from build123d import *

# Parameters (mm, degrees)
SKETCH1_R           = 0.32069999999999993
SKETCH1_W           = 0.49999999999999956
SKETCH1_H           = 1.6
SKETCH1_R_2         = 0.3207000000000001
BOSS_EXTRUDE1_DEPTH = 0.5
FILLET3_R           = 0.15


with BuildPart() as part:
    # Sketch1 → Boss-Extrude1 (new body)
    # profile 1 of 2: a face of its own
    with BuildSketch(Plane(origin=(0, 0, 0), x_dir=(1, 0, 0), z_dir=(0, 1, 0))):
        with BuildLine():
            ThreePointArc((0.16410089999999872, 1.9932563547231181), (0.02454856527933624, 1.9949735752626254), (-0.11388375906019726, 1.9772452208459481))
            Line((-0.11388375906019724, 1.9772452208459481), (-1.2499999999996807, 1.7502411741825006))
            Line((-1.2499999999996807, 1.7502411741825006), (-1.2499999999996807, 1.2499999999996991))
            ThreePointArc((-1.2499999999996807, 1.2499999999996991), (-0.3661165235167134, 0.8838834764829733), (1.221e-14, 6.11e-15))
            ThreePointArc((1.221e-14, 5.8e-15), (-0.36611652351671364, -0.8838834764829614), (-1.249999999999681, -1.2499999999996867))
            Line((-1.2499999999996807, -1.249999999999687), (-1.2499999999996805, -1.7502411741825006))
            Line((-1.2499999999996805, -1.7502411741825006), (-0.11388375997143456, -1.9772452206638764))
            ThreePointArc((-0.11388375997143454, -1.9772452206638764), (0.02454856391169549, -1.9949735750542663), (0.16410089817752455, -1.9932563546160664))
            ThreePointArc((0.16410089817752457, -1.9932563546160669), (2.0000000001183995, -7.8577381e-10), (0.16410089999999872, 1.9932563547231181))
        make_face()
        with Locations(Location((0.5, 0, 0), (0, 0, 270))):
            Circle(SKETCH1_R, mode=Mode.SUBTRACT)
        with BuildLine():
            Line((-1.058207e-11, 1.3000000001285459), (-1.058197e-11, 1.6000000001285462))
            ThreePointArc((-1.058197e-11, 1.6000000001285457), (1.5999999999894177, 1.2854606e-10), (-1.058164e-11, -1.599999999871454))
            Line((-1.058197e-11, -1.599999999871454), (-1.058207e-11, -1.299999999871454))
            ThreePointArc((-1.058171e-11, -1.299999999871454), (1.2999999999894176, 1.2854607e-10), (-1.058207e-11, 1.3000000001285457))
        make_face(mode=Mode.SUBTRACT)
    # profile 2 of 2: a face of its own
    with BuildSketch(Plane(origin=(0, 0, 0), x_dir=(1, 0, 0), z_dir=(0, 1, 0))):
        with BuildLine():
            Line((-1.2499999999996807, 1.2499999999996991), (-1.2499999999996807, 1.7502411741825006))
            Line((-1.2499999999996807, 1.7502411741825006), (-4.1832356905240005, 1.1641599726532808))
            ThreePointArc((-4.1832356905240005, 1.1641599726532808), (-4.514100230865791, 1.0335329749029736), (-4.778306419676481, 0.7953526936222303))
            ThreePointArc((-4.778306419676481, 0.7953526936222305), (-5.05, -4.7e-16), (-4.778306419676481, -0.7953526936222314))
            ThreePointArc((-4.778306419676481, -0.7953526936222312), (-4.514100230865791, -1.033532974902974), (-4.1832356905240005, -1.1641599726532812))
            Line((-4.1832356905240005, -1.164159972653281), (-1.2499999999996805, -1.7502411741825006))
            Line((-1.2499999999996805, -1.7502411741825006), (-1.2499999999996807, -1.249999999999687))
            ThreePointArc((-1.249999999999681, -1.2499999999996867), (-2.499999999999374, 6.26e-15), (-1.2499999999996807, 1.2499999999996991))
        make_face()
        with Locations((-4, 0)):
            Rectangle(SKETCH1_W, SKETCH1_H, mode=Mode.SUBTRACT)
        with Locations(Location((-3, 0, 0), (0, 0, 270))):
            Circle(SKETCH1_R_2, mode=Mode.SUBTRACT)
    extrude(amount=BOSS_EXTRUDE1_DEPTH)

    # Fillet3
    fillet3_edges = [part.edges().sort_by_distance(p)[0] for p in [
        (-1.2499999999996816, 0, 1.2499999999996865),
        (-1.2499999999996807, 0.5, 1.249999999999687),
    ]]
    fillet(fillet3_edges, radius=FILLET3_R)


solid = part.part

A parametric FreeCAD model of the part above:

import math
import FreeCAD as App
import Part
import Sketcher
Q = App.Units.Quantity


def edges_at(feature, points):
    """Names of the edges that pass closest to the given points."""
    edges = feature.Shape.Edges
    near = lambda p: min(range(len(edges)), key=lambda i: edges[i].distToShape(Part.Vertex(*p))[0])
    return sorted({f"Edge{near(p) + 1}" for p in points})


def add_polygon(sketch, points):
    """Adds a closed chain of lines whose ends are joined by coincident constraints."""
    first, n = sketch.GeometryCount, len(points)
    for a, b in zip(points, points[1:] + points[:1]):
        sketch.addGeometry(Part.LineSegment(App.Vector(*a, 0), App.Vector(*b, 0)), False)
    for i in range(n):
        sketch.addConstraint(Sketcher.Constraint("Coincident", first + i, 2, first + (i + 1) % n, 1))

doc = App.newDocument("Part")
body = doc.addObject("PartDesign::Body", "Body")

# Sketch on XZ plane
sketch1 = body.newObject("Sketcher::SketchObject", "Sketch")
sketch1.AttachmentSupport = (doc.getObject("XZ_Plane"), [""])
sketch1.MapMode = "FlatFace"
sketch1.addGeometry(Part.ArcOfCircle(Part.Circle(App.Vector(0.08205, -0.996628, 0), App.Vector(0, 0, 1), 1), math.radians(-101.299303), math.radians(-85.293565)), False)  # 0
sketch1.addGeometry(Part.LineSegment(App.Vector(-0.113884, -1.977245, 0), App.Vector(-4.183236, -1.16416, 0)), False)  # 1
sketch1.addGeometry(Part.ArcOfCircle(Part.Circle(App.Vector(-3.987301, -0.183543, 0), App.Vector(0, 0, 1), 1), math.radians(-142.279524), math.radians(-101.299303)), False)  # 2
sketch1.addGeometry(Part.ArcOfCircle(Part.Circle(App.Vector(-3.75, 0, 0), App.Vector(0, 0, 1), 1.3), math.radians(142.279524), math.radians(217.720476)), False)  # 3
sketch1.addGeometry(Part.ArcOfCircle(Part.Circle(App.Vector(-3.987301, 0.183543, 0), App.Vector(0, 0, 1), 1), math.radians(101.299303), math.radians(142.279524)), False)  # 4
sketch1.addGeometry(Part.LineSegment(App.Vector(-4.183236, 1.16416, 0), App.Vector(-0.113884, 1.977245, 0)), False)  # 5
sketch1.addGeometry(Part.ArcOfCircle(Part.Circle(App.Vector(0.08205, 0.996628, 0), App.Vector(0, 0, 1), 1), math.radians(85.293565), math.radians(101.299303)), False)  # 6
sketch1.addGeometry(Part.ArcOfCircle(Part.Circle(App.Vector(0, 0, 0), App.Vector(0, 0, 1), 2), math.radians(-85.293565), math.radians(85.293565)), False)  # 7
sketch1.addGeometry(Part.Circle(App.Vector(-1.25, 0, 0), App.Vector(0, 0, 1), 1.25), False)  # 8
sketch1.addGeometry(Part.Circle(App.Vector(0.5, 0, 0), App.Vector(0, 0, 1), 0.3207), False)  # 9
sketch1.addGeometry(Part.ArcOfCircle(Part.Circle(App.Vector(0, 0, 0), App.Vector(0, 0, 1), 1.3), math.radians(-90), math.radians(90)), False)  # 10
sketch1.addGeometry(Part.LineSegment(App.Vector(0, -1.3, 0), App.Vector(0, -1.6, 0)), False)  # 11
sketch1.addGeometry(Part.ArcOfCircle(Part.Circle(App.Vector(0, 0, 0), App.Vector(0, 0, 1), 1.6), math.radians(-90), math.radians(90)), False)  # 12
sketch1.addGeometry(Part.LineSegment(App.Vector(0, 1.6, 0), App.Vector(0, 1.3, 0)), False)  # 13
sketch1.addGeometry(Part.Circle(App.Vector(-3, 0, 0), App.Vector(0, 0, 1), 0.3207), False)  # 14
add_polygon(sketch1, [(-4.25, -0.8), (-3.75, -0.8), (-3.75, 0.8), (-4.25, 0.8)])  # lines 15-18
sketch1.addConstraint([
    Sketcher.Constraint("Tangent", 0, 1, 1, 1),
    Sketcher.Constraint("Tangent", 1, 2, 2, 2),
    Sketcher.Constraint("Tangent", 2, 1, 3, 2),
    Sketcher.Constraint("Tangent", 3, 1, 4, 2),
    Sketcher.Constraint("Tangent", 4, 1, 5, 1),
    Sketcher.Constraint("Tangent", 5, 2, 6, 2),
    Sketcher.Constraint("Tangent", 6, 1, 7, 2),
    Sketcher.Constraint("Tangent", 7, 1, 0, 2),
    Sketcher.Constraint("Coincident", 10, 1, 11, 1),
    Sketcher.Constraint("Coincident", 11, 2, 12, 1),
    Sketcher.Constraint("Coincident", 12, 2, 13, 1),
    Sketcher.Constraint("Coincident", 13, 2, 10, 2),
    Sketcher.Constraint("Vertical", 11),
    Sketcher.Constraint("Vertical", 13),
    Sketcher.Constraint("Horizontal", 15),
    Sketcher.Constraint("Vertical", 16),
    Sketcher.Constraint("Horizontal", 17),
    Sketcher.Constraint("Vertical", 18),
    Sketcher.Constraint("Coincident", 7, 3, -1, 1),
    Sketcher.Constraint("Coincident", 10, 3, -1, 1),
    Sketcher.Constraint("Coincident", 12, 3, -1, 1),
    Sketcher.Constraint("Equal", 0, 2),
    Sketcher.Constraint("Equal", 2, 4),
    Sketcher.Constraint("Equal", 4, 6),
    Sketcher.Constraint("Equal", 3, 10),
    Sketcher.Constraint("Equal", 9, 14),
    Sketcher.Constraint("Symmetric", 2, 3, 4, 3, -1),
    Sketcher.Constraint("PointOnObject", 8, 3, -1),
    Sketcher.Constraint("PointOnObject", 9, 3, -1),
    Sketcher.Constraint("PointOnObject", 14, 3, -1),
    Sketcher.Constraint("PointOnObject", 10, 1, -2),
    Sketcher.Constraint("PointOnObject", 12, 2, -2),
    Sketcher.Constraint("Vertical", 0, 3, 6, 3),
    Sketcher.Constraint("Vertical", 3, 3, 15, 2),
    Sketcher.Constraint("Radius", 0, Q("1 mm")),
    Sketcher.Constraint("Radius", 7, Q("2 mm")),
    Sketcher.Constraint("Diameter", 8, Q("2.5 mm")),
    Sketcher.Constraint("Radius", 3, Q("1.3 mm")),
    Sketcher.Constraint("Radius", 12, Q("1.6 mm")),
    Sketcher.Constraint("DistanceX", 15, 1, 15, 2, Q("0.5 mm")),
    Sketcher.Constraint("DistanceY", 16, 1, 16, 2, Q("1.6 mm")),
    Sketcher.Constraint("DistanceX", 14, 3, -1, 1, Q("3 mm")),
    Sketcher.Constraint("Diameter", 9, Q("0.6414 mm")),
    Sketcher.Constraint("DistanceX", -1, 1, 9, 3, Q("0.5 mm")),
    Sketcher.Constraint("DistanceY", 15, 2, -1, 1, Q("0.8 mm")),
    Sketcher.Constraint("DistanceX", 3, 3, 8, 3, Q("2.5 mm")),
    Sketcher.Constraint("DistanceX", 3, 3, -1, 1, Q("3.75 mm")),
    Sketcher.Constraint("DistanceX", 2, 3, -1, 1, Q("3.987301 mm")),
    Sketcher.Constraint("DistanceX", -1, 1, 6, 1, Q("0.164101 mm")),
])
pad1 = body.newObject("PartDesign::Pad", "Pad")
pad1.Profile = sketch1
pad1.Length = 0.5
pad1.Reversed = True
doc.recompute()

fillet = body.newObject("PartDesign::Fillet", "Fillet")
fillet.Base = (pad1, edges_at(pad1, [(-1.25, 0, 1.25), (-1.25, 0.5, 1.25)]))
fillet.Radius = 0.15

doc.recompute()
